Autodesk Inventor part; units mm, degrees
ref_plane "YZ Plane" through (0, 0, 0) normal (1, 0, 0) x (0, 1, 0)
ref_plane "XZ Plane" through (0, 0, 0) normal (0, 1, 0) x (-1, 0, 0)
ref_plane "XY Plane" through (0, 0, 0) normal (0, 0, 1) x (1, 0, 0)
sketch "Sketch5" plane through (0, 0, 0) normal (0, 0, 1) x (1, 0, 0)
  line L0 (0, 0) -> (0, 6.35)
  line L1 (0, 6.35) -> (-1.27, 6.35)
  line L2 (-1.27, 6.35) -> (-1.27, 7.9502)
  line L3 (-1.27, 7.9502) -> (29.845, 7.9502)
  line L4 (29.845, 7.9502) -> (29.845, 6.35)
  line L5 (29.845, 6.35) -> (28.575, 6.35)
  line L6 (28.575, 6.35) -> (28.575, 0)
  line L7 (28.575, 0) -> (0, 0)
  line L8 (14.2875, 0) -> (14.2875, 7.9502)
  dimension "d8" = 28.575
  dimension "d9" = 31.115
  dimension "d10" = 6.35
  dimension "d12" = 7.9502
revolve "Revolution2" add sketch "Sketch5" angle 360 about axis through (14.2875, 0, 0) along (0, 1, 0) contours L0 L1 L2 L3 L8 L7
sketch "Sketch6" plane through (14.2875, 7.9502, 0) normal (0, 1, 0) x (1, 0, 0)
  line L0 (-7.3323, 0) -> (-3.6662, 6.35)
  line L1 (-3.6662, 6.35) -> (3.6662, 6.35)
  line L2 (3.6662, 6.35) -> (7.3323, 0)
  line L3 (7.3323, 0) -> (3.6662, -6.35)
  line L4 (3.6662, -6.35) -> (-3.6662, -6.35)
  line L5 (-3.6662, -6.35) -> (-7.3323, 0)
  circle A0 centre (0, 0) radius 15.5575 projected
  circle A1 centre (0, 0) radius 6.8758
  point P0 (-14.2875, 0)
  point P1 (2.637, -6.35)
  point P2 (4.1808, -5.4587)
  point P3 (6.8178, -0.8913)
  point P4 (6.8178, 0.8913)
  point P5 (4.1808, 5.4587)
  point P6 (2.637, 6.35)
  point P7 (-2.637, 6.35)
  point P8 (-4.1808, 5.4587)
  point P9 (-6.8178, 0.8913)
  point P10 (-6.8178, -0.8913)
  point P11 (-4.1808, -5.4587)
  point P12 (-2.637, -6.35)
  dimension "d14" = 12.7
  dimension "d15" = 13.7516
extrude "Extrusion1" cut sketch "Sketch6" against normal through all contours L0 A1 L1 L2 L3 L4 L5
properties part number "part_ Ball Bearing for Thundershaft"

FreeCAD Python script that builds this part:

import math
import FreeCAD as App
import Part
import Sketcher
from FreeCAD import Vector
Q = App.Units.Quantity


def add_polygon(sketch, points):
    """Adds a closed chain of lines whose ends are joined by coincident constraints."""
    first, n = sketch.GeometryCount, len(points)
    for a, b in zip(points, points[1:] + points[:1]):
        sketch.addGeometry(Part.LineSegment(App.Vector(*a, 0), App.Vector(*b, 0)), False)
    for i in range(n):
        sketch.addConstraint(Sketcher.Constraint("Coincident", first + i, 2, first + (i + 1) % n, 1))

doc = App.newDocument("Part")
params = doc.addObject("Spreadsheet::Sheet", "Params")
for row, (alias, value) in enumerate([
    ("sketch1_height", "0.25 in"),
    ("sketch1_height2", "0.313 in"),
    ("sketch1_width", "0.05 in"),
    ("sketch1_width2", "0.5625 in"),
    ("revolution_angle", "360 deg"),
], start=1):
    params.set(f"A{row}", alias)
    params.set(f"B{row}", "=" + value)
    params.setAlias(f"B{row}", alias)

body = doc.addObject("PartDesign::Body", "Body")

# Sketch on XY plane
sketch1 = doc.addObject("Sketcher::SketchObject", "Sketch")
body.addObject(sketch1)
sketch1.AttachmentSupport = (doc.XY_Plane, [""])
sketch1.MapMode = "FlatFace"
add_polygon(sketch1, [(0, 6.35), (0, 0), (14.2875, 0), (14.2875, 7.9502), (-1.27, 7.9502), (-1.27, 6.35)])  # lines 0-5
sketch1.addGeometry(Part.LineSegment(Vector(14.2875, 0, 0), Vector(14.2875, 7.9502, 0)), True)  # axis
sketch1.addConstraint(Sketcher.Constraint("Vertical", 0))
sketch1.addConstraint(Sketcher.Constraint("Horizontal", 1))
sketch1.addConstraint(Sketcher.Constraint("Vertical", 2))
sketch1.addConstraint(Sketcher.Constraint("Horizontal", 3))
sketch1.addConstraint(Sketcher.Constraint("Vertical", 4))
sketch1.addConstraint(Sketcher.Constraint("Horizontal", 5))
sketch1.addConstraint(Sketcher.Constraint("Vertical", 6))
sketch1.addConstraint(Sketcher.Constraint("Coincident", 0, 2, -1, 1))
sketch1.addConstraint(Sketcher.Constraint("Coincident", 6, 1, 1, 2))
sketch1.addConstraint(Sketcher.Constraint("Horizontal", 3, 2, 6, 2))
sketch1.addConstraint(Sketcher.Constraint("DistanceY", 0, 2, 0, 1, Q("0.25 in")))
sketch1.addConstraint(Sketcher.Constraint("DistanceY", 2, 1, 2, 2, Q("0.313 in")))
sketch1.addConstraint(Sketcher.Constraint("DistanceX", 5, 1, 5, 2, Q("0.05 in")))
sketch1.addConstraint(Sketcher.Constraint("DistanceX", 1, 1, 1, 2, Q("0.5625 in")))
sketch1.setExpression("Constraints[16]", "Params.sketch1_height")
sketch1.setExpression("Constraints[17]", "Params.sketch1_height2")
sketch1.setExpression("Constraints[18]", "Params.sketch1_width")
sketch1.setExpression("Constraints[19]", "Params.sketch1_width2")
revolution = doc.addObject("PartDesign::Revolution", "Revolution")
body.addObject(revolution)
revolution.Profile = sketch1
revolution.ReferenceAxis = (sketch1, ["Axis0"])
revolution.setExpression("Angle", "Params.revolution_angle")

# Sketch on XZ plane
sketch2 = doc.addObject("Sketcher::SketchObject", "Sketch001")
body.addObject(sketch2)
sketch2.AttachmentSupport = (doc.XZ_Plane, [""])
sketch2.MapMode = "FlatFace"
sketch2.AttachmentOffset = App.Placement(Vector(0, 0, -0.313 * 25.4), App.Rotation())
sketch2.addGeometry(Part.LineSegment(Vector(10.106745, -5.458746, 0), Vector(7.469694, -0.891147, 0)), False)
sketch2.addGeometry(Part.ArcOfCircle(Part.Circle(Vector(14.2875, 0, 0), Vector(0, 0, 1), 6.8758), math.radians(172.553154), math.radians(187.446846)), False)
sketch2.addGeometry(Part.LineSegment(Vector(7.469694, 0.891147, 0), Vector(10.106745, 5.458746, 0)), False)
sketch2.addGeometry(Part.ArcOfCircle(Part.Circle(Vector(14.2875, 0, 0), Vector(0, 0, 1), 6.8758), math.radians(112.552439), math.radians(127.44785)), False)
sketch2.addGeometry(Part.LineSegment(Vector(11.650432, 6.35, 0), Vector(16.924568, 6.35, 0)), False)
sketch2.addGeometry(Part.ArcOfCircle(Part.Circle(Vector(14.2875, 0, 0), Vector(0, 0, 1), 6.8758), math.radians(52.55215), math.radians(67.447561)), False)
sketch2.addGeometry(Part.LineSegment(Vector(18.468255, 5.458746, 0), Vector(21.105306, 0.891147, 0)), False)
sketch2.addGeometry(Part.ArcOfCircle(Part.Circle(Vector(14.2875, 0, 0), Vector(0, 0, 1), 6.8758), math.radians(-7.446846), math.radians(7.446846)), False)
sketch2.addGeometry(Part.LineSegment(Vector(21.105306, -0.891147, 0), Vector(18.468255, -5.458746, 0)), False)
sketch2.addGeometry(Part.ArcOfCircle(Part.Circle(Vector(14.2875, 0, 0), Vector(0, 0, 1), 6.8758), math.radians(-67.447561), math.radians(-52.55215)), False)
sketch2.addGeometry(Part.LineSegment(Vector(16.924568, -6.35, 0), Vector(11.650432, -6.35, 0)), False)
sketch2.addGeometry(Part.ArcOfCircle(Part.Circle(Vector(14.2875, 0, 0), Vector(0, 0, 1), 6.8758), math.radians(-127.44785), math.radians(-112.552439)), False)
sketch2.addConstraint(Sketcher.Constraint("Coincident", 0, 2, 1, 2))
sketch2.addConstraint(Sketcher.Constraint("Coincident", 1, 1, 2, 1))
sketch2.addConstraint(Sketcher.Constraint("Coincident", 2, 2, 3, 2))
sketch2.addConstraint(Sketcher.Constraint("Coincident", 3, 1, 4, 1))
sketch2.addConstraint(Sketcher.Constraint("Coincident", 4, 2, 5, 2))
sketch2.addConstraint(Sketcher.Constraint("Coincident", 5, 1, 6, 1))
sketch2.addConstraint(Sketcher.Constraint("Coincident", 6, 2, 7, 2))
sketch2.addConstraint(Sketcher.Constraint("Coincident", 7, 1, 8, 1))
sketch2.addConstraint(Sketcher.Constraint("Coincident", 8, 2, 9, 2))
sketch2.addConstraint(Sketcher.Constraint("Coincident", 9, 1, 10, 1))
sketch2.addConstraint(Sketcher.Constraint("Coincident", 10, 2, 11, 2))
sketch2.addConstraint(Sketcher.Constraint("Coincident", 11, 1, 0, 1))
sketch2.addConstraint(Sketcher.Constraint("Horizontal", 4))
sketch2.addConstraint(Sketcher.Constraint("Horizontal", 10))
sketch2.addConstraint(Sketcher.Constraint("Coincident", 3, 3, 1, 3))
sketch2.addConstraint(Sketcher.Constraint("Coincident", 5, 3, 1, 3))
sketch2.addConstraint(Sketcher.Constraint("Coincident", 7, 3, 1, 3))
sketch2.addConstraint(Sketcher.Constraint("Coincident", 9, 3, 1, 3))
sketch2.addConstraint(Sketcher.Constraint("Coincident", 11, 3, 1, 3))
sketch2.addConstraint(Sketcher.Constraint("Equal", 1, 3))
sketch2.addConstraint(Sketcher.Constraint("Equal", 3, 5))
sketch2.addConstraint(Sketcher.Constraint("Equal", 5, 7))
sketch2.addConstraint(Sketcher.Constraint("Equal", 7, 9))
sketch2.addConstraint(Sketcher.Constraint("Equal", 9, 11))
sketch2.addConstraint(Sketcher.Constraint("Symmetric", 0, 2, 1, 1, -1))
sketch2.addConstraint(Sketcher.Constraint("Parallel", 0, 6))
sketch2.addConstraint(Sketcher.Constraint("Parallel", 2, 8))
sketch2.addConstraint(Sketcher.Constraint("Horizontal", 2, 2, 5, 1))
sketch2.addConstraint(Sketcher.Constraint("Horizontal", 1, 1, 6, 2))
sketch2.addConstraint(Sketcher.Constraint("Horizontal", 0, 2, 7, 1))
sketch2.addConstraint(Sketcher.Constraint("Vertical", 4, 2, 9, 1))
sketch2.addConstraint(Sketcher.Constraint("Radius", 1, Q("0.2707 in")))
sketch2.addConstraint(Sketcher.Constraint("Angle", 0, Q("119.9995 deg")))
sketch2.addConstraint(Sketcher.Constraint("DistanceY", -1, 1, 3, 1, Q("0.25 in")))
sketch2.addConstraint(Sketcher.Constraint("DistanceY", 0, 2, 2, 2, Q("0.25 in")))
sketch2.addConstraint(Sketcher.Constraint("DistanceX", -1, 1, 1, 3, Q("0.5625 in")))
pocket1 = doc.addObject("PartDesign::Pocket", "Pocket")
body.addObject(pocket1)
pocket1.Profile = sketch2
pocket1.Type = "ThroughAll"
pocket1.Reversed = True

doc.recompute()
